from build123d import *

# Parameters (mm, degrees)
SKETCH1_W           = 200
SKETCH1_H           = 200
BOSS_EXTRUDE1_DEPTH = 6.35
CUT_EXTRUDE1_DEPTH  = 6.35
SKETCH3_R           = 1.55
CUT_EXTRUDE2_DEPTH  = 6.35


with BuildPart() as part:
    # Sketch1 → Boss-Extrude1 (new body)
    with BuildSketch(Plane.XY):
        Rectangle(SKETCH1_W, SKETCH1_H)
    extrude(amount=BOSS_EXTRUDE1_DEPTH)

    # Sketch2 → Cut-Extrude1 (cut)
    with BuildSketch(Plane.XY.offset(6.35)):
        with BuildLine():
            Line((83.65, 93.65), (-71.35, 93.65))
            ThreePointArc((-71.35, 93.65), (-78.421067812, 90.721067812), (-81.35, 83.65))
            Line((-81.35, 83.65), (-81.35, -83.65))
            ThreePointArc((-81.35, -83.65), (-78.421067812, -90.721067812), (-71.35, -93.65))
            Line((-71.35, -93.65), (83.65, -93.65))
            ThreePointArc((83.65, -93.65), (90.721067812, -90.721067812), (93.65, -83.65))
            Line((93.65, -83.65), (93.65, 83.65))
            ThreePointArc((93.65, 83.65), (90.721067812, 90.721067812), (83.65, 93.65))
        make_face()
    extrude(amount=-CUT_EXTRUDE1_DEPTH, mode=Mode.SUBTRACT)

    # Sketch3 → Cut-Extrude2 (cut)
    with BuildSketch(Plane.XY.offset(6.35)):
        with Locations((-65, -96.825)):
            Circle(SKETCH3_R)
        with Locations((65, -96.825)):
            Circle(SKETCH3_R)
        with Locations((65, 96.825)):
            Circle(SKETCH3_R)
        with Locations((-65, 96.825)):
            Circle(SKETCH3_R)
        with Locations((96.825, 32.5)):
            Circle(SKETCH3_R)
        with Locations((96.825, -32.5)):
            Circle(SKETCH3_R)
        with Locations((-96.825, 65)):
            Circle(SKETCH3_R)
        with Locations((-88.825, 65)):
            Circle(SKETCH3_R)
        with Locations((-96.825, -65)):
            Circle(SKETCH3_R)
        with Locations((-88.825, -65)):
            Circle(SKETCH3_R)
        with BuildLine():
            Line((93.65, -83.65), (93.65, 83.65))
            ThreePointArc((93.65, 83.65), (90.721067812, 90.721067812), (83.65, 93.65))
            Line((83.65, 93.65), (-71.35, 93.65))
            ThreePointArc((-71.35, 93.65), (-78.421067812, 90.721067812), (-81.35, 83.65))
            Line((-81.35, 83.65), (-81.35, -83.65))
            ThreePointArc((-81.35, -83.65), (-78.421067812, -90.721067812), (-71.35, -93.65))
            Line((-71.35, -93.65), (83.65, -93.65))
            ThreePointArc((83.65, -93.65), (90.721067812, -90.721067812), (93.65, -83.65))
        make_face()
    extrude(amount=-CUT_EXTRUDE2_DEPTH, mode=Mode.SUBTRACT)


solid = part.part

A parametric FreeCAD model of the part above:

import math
import FreeCAD as App
import Part
import Sketcher

V = App.Vector


def add_polygon(sketch, points):
    """Adds a closed chain of lines whose ends are joined by coincident constraints."""
    first, n = sketch.GeometryCount, len(points)
    for a, b in zip(points, points[1:] + points[:1]):
        sketch.addGeometry(Part.LineSegment(App.Vector(*a, 0), App.Vector(*b, 0)), False)
    for i in range(n):
        sketch.addConstraint(Sketcher.Constraint("Coincident", first + i, 2, first + (i + 1) % n, 1))

doc = App.newDocument("Part")
body = doc.addObject("PartDesign::Body", "Body")

# Sketch on XY plane
sketch1 = body.newObject("Sketcher::SketchObject", "Sketch")
sketch1.AttachmentSupport = (doc.getObject("XY_Plane"), [""])
sketch1.MapMode = "FlatFace"
add_polygon(sketch1, [(-100, 100), (-100, -100), (100, -100), (100, 100)])  # lines 0-3
sketch1.addConstraint([
    Sketcher.Constraint("Vertical", 0),
    Sketcher.Constraint("Horizontal", 1),
    Sketcher.Constraint("Vertical", 2),
    Sketcher.Constraint("Horizontal", 3),
    Sketcher.Constraint("Symmetric", 0, 2, 2, 2, -1, 1),
    Sketcher.Constraint("Equal", 3, 0),
    Sketcher.Constraint("DistanceX", 1, 1, 1, 2, 200.0),
])
pad1 = body.newObject("PartDesign::Pad", "Pad")
pad1.Profile = sketch1
pad1.Length = 6.35

# Sketch on XY plane
sketch2 = body.newObject("Sketcher::SketchObject", "Sketch001")
sketch2.AttachmentSupport = (doc.getObject("XY_Plane"), [""])
sketch2.MapMode = "FlatFace"
sketch2.AttachmentOffset = App.Placement(V(0, 0, 6.35), App.Rotation())
sketch2.addGeometry([
    Part.LineSegment(V(84, 94, 0), V(-71, 94, 0)),  # 0
    Part.ArcOfCircle(Part.Circle(V(-71, 84, 0), V(0, 0, 1), 10), math.radians(90), math.radians(180)),  # 1
    Part.LineSegment(V(-81, 84, 0), V(-81, -84, 0)),  # 2
    Part.ArcOfCircle(Part.Circle(V(-71, -84, 0), V(0, 0, 1), 10), math.radians(180), math.radians(270)),  # 3
    Part.LineSegment(V(-71, -94, 0), V(84, -94, 0)),  # 4
    Part.ArcOfCircle(Part.Circle(V(84, -84, 0), V(0, 0, 1), 10), math.radians(-90), math.radians(0)),  # 5
    Part.LineSegment(V(94, -84, 0), V(94, 84, 0)),  # 6
    Part.ArcOfCircle(Part.Circle(V(84, 84, 0), V(0, 0, 1), 10), math.radians(0), math.radians(90)),  # 7
], False)
sketch2.addConstraint([
    Sketcher.Constraint("Tangent", 0, 2, 1, 1),
    Sketcher.Constraint("Tangent", 1, 2, 2, 1),
    Sketcher.Constraint("Tangent", 2, 2, 3, 1),
    Sketcher.Constraint("Tangent", 3, 2, 4, 1),
    Sketcher.Constraint("Tangent", 4, 2, 5, 1),
    Sketcher.Constraint("Tangent", 5, 2, 6, 1),
    Sketcher.Constraint("Tangent", 6, 2, 7, 1),
    Sketcher.Constraint("Tangent", 7, 2, 0, 1),
    Sketcher.Constraint("Horizontal", 0),
    Sketcher.Constraint("Vertical", 2),
    Sketcher.Constraint("Horizontal", 4),
    Sketcher.Constraint("Vertical", 6),
    Sketcher.Constraint("Equal", 1, 3),
    Sketcher.Constraint("Equal", 3, 5),
    Sketcher.Constraint("Equal", 5, 7),
    Sketcher.Constraint("Radius", 1, 10.0),
    Sketcher.Constraint("DistanceX", 0, 2, 0, 1, 155.0),
    Sketcher.Constraint("DistanceY", 2, 2, 2, 1, 167.3),
    Sketcher.Constraint("DistanceX", 1, 3, -1, 1, 71.35),
    Sketcher.Constraint("DistanceY", -1, 1, 1, 3, 83.65),
])
pocket1 = body.newObject("PartDesign::Pocket", "Pocket")
pocket1.Profile = sketch2
pocket1.Length = 6.35

# Sketch on XY plane
sketch3 = body.newObject("Sketcher::SketchObject", "Sketch002")
sketch3.AttachmentSupport = (doc.getObject("XY_Plane"), [""])
sketch3.MapMode = "FlatFace"
sketch3.AttachmentOffset = App.Placement(V(0, 0, 6.35), App.Rotation())
sketch3.addGeometry([
    Part.Circle(V(-65, -96.8, 0), V(0, 0, 1), 1.6),  # 0
    Part.Circle(V(65, -96.8, 0), V(0, 0, 1), 1.6),  # 1
    Part.Circle(V(65, 96.8, 0), V(0, 0, 1), 1.6),  # 2
    Part.Circle(V(-65, 96.8, 0), V(0, 0, 1), 1.6),  # 3
    Part.Circle(V(96.8, 32.5, 0), V(0, 0, 1), 1.6),  # 4
    Part.Circle(V(96.8, -32.5, 0), V(0, 0, 1), 1.6),  # 5
    Part.Circle(V(-96.8, 65, 0), V(0, 0, 1), 1.6),  # 6
    Part.Circle(V(-88.8, 65, 0), V(0, 0, 1), 1.6),  # 7
    Part.Circle(V(-96.8, -65, 0), V(0, 0, 1), 1.6),  # 8
    Part.Circle(V(-88.8, -65, 0), V(0, 0, 1), 1.6),  # 9
    Part.LineSegment(V(93.7, -83.7, 0), V(93.7, 83.7, 0)),  # 10
    Part.ArcOfCircle(Part.Circle(V(83.7, 83.7, 0), V(0, 0, 1), 10), math.radians(0), math.radians(90)),  # 11
    Part.LineSegment(V(83.7, 93.7, 0), V(-71.3, 93.7, 0)),  # 12
    Part.ArcOfCircle(Part.Circle(V(-71.3, 83.7, 0), V(0, 0, 1), 10), math.radians(90), math.radians(180)),  # 13
    Part.LineSegment(V(-81.3, 83.7, 0), V(-81.3, -83.7, 0)),  # 14
    Part.ArcOfCircle(Part.Circle(V(-71.3, -83.7, 0), V(0, 0, 1), 10), math.radians(180), math.radians(270)),  # 15
    Part.LineSegment(V(-71.3, -93.7, 0), V(83.7, -93.7, 0)),  # 16
    Part.ArcOfCircle(Part.Circle(V(83.7, -83.7, 0), V(0, 0, 1), 10), math.radians(-90), math.radians(0)),  # 17
], False)
sketch3.addConstraint([
    Sketcher.Constraint("Tangent", 10, 2, 11, 1),
    Sketcher.Constraint("Tangent", 11, 2, 12, 1),
    Sketcher.Constraint("Tangent", 12, 2, 13, 1),
    Sketcher.Constraint("Tangent", 13, 2, 14, 1),
    Sketcher.Constraint("Tangent", 14, 2, 15, 1),
    Sketcher.Constraint("Tangent", 15, 2, 16, 1),
    Sketcher.Constraint("Tangent", 16, 2, 17, 1),
    Sketcher.Constraint("Tangent", 17, 2, 10, 1),
    Sketcher.Constraint("Vertical", 10),
    Sketcher.Constraint("Horizontal", 12),
    Sketcher.Constraint("Vertical", 14),
    Sketcher.Constraint("Horizontal", 16),
    Sketcher.Constraint("Equal", 0, 1),
    Sketcher.Constraint("Equal", 1, 2),
    Sketcher.Constraint("Equal", 2, 3),
    Sketcher.Constraint("Equal", 3, 4),
    Sketcher.Constraint("Equal", 4, 5),
    Sketcher.Constraint("Equal", 5, 6),
    Sketcher.Constraint("Equal", 6, 7),
    Sketcher.Constraint("Equal", 7, 8),
    Sketcher.Constraint("Equal", 8, 9),
    Sketcher.Constraint("Equal", 11, 13),
    Sketcher.Constraint("Equal", 13, 15),
    Sketcher.Constraint("Equal", 15, 17),
    Sketcher.Constraint("Symmetric", 0, 3, 2, 3, -1, 1),
    Sketcher.Constraint("Symmetric", 1, 3, 3, 3, -1, 1),
    Sketcher.Constraint("Symmetric", 0, 3, 1, 3, -2),
    Sketcher.Constraint("Symmetric", 4, 3, 5, 3, -1),
    Sketcher.Constraint("Symmetric", 6, 3, 8, 3, -1),
    Sketcher.Constraint("Symmetric", 7, 3, 9, 3, -1),
    Sketcher.Constraint("Horizontal", 6, 3, 7, 3),
    Sketcher.Constraint("Radius", 11, 10.0),
    Sketcher.Constraint("Diameter", 0, 3.1),
    Sketcher.Constraint("DistanceX", 12, 2, 12, 1, 155.0),
    Sketcher.Constraint("DistanceY", 10, 1, 10, 2, 167.3),
    Sketcher.Constraint("DistanceX", 0, 3, -1, 1, 65.0),
    Sketcher.Constraint("DistanceY", -1, 1, 6, 3, 65.0),
    Sketcher.Constraint("DistanceY", 5, 3, 4, 3, 65.0),
    Sketcher.Constraint("DistanceX", 6, 3, 7, 3, 8.0),
    Sketcher.Constraint("DistanceX", -1, 1, 11, 3, 83.65),
    Sketcher.Constraint("DistanceY", -1, 1, 11, 3, 83.65),
    Sketcher.Constraint("DistanceY", 1, 3, 2, 3, 193.65),
    Sketcher.Constraint("DistanceX", 6, 3, 4, 3, 193.65),
    Sketcher.Constraint("DistanceX", -1, 1, 4, 3, 96.825),
])
pocket2 = body.newObject("PartDesign::Pocket", "Pocket001")
pocket2.Profile = sketch3
pocket2.Length = 6.35

doc.recompute()
